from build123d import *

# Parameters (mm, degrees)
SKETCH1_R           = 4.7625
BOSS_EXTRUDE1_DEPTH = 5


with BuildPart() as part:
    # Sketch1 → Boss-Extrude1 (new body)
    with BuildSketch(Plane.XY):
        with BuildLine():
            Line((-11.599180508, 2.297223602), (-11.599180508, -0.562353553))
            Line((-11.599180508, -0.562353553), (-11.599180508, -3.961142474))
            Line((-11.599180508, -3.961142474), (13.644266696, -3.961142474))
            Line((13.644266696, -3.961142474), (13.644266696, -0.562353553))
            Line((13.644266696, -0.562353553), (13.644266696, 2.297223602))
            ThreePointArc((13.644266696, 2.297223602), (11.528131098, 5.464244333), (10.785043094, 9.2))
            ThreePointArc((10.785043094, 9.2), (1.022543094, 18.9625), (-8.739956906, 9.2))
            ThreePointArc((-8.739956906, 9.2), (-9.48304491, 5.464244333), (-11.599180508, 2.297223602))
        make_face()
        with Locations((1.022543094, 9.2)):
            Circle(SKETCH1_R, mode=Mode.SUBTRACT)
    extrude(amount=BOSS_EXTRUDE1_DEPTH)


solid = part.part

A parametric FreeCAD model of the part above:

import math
import FreeCAD as App
import Part
import Sketcher

doc = App.newDocument("Part")
params = doc.addObject("Spreadsheet::Sheet", "Params")
for row, (alias, value) in enumerate([
    ("pad1_length", "5 mm"),
], start=1):
    params.set(f"A{row}", alias)
    params.set(f"B{row}", "=" + value)
    params.setAlias(f"B{row}", alias)

body = doc.addObject("PartDesign::Body", "Body")

sketch1 = body.newObject("Sketcher::SketchObject", "Sketch")
sketch1.AttachmentSupport = (doc.getObject("XY_Plane"), [""])
sketch1.MapMode = "FlatFace"
sketch1.addGeometry([
    Part.LineSegment(App.Vector(-11.599181, 2.297224, 0), App.Vector(-11.599181, -3.961142, 0)),
    Part.LineSegment(App.Vector(-11.599181, -3.961142, 0), App.Vector(13.644267, -3.961142, 0)),
    Part.LineSegment(App.Vector(13.644267, -3.961142, 0), App.Vector(13.644267, 2.297224, 0)),
    Part.ArcOfCircle(Part.Circle(App.Vector(20.547043, 9.2, 0), App.Vector(0, 0, 1), 9.762), math.radians(-180), math.radians(-135)),
    Part.ArcOfCircle(Part.Circle(App.Vector(1.022543, 9.2, 0), App.Vector(0, 0, 1), 9.7625), math.radians(0), math.radians(180)),
    Part.ArcOfCircle(Part.Circle(App.Vector(-18.501957, 9.2, 0), App.Vector(0, 0, 1), 9.762), math.radians(-45), math.radians(0)),
    Part.Circle(App.Vector(1.022543, 9.2, 0), App.Vector(0, 0, 1), 4.7625),
], False)
sketch1.addConstraint([
    Sketcher.Constraint("Coincident", 0, 2, 1, 1),
    Sketcher.Constraint("Coincident", 1, 2, 2, 1),
    Sketcher.Constraint("Coincident", 2, 2, 3, 2),
    Sketcher.Constraint("Tangent", 3, 1, 4, 1),
    Sketcher.Constraint("Tangent", 4, 2, 5, 2),
    Sketcher.Constraint("Coincident", 5, 1, 0, 1),
    Sketcher.Constraint("Vertical", 0),
    Sketcher.Constraint("Horizontal", 1),
    Sketcher.Constraint("Vertical", 2),
    Sketcher.Constraint("Coincident", 6, 3, 4, 3),
    Sketcher.Constraint("Equal", 3, 5),
    Sketcher.Constraint("Horizontal", 3, 3, 4, 3),
    Sketcher.Constraint("Horizontal", 4, 3, 5, 3),
    Sketcher.Constraint("Horizontal", 2, 2, 5, 1),
    Sketcher.Constraint("Diameter", 6, 9.525),
    Sketcher.Constraint("Radius", 3, 9.762),
    Sketcher.Constraint("DistanceY", -1, 1, 3, 3, 9.2),
    Sketcher.Constraint("Radius", 4, 9.7625),
    Sketcher.Constraint("DistanceX", 1, 1, 1, 2, 25.243447),
    Sketcher.Constraint("DistanceY", 0, 2, 0, 1, 6.258366),
    Sketcher.Constraint("DistanceX", 0, 2, -1, 1, 11.599181),
])
pad1 = body.newObject("PartDesign::Pad", "Pad")
pad1.Profile = sketch1
pad1.setExpression("Length", "Params.pad1_length")

doc.recompute()
